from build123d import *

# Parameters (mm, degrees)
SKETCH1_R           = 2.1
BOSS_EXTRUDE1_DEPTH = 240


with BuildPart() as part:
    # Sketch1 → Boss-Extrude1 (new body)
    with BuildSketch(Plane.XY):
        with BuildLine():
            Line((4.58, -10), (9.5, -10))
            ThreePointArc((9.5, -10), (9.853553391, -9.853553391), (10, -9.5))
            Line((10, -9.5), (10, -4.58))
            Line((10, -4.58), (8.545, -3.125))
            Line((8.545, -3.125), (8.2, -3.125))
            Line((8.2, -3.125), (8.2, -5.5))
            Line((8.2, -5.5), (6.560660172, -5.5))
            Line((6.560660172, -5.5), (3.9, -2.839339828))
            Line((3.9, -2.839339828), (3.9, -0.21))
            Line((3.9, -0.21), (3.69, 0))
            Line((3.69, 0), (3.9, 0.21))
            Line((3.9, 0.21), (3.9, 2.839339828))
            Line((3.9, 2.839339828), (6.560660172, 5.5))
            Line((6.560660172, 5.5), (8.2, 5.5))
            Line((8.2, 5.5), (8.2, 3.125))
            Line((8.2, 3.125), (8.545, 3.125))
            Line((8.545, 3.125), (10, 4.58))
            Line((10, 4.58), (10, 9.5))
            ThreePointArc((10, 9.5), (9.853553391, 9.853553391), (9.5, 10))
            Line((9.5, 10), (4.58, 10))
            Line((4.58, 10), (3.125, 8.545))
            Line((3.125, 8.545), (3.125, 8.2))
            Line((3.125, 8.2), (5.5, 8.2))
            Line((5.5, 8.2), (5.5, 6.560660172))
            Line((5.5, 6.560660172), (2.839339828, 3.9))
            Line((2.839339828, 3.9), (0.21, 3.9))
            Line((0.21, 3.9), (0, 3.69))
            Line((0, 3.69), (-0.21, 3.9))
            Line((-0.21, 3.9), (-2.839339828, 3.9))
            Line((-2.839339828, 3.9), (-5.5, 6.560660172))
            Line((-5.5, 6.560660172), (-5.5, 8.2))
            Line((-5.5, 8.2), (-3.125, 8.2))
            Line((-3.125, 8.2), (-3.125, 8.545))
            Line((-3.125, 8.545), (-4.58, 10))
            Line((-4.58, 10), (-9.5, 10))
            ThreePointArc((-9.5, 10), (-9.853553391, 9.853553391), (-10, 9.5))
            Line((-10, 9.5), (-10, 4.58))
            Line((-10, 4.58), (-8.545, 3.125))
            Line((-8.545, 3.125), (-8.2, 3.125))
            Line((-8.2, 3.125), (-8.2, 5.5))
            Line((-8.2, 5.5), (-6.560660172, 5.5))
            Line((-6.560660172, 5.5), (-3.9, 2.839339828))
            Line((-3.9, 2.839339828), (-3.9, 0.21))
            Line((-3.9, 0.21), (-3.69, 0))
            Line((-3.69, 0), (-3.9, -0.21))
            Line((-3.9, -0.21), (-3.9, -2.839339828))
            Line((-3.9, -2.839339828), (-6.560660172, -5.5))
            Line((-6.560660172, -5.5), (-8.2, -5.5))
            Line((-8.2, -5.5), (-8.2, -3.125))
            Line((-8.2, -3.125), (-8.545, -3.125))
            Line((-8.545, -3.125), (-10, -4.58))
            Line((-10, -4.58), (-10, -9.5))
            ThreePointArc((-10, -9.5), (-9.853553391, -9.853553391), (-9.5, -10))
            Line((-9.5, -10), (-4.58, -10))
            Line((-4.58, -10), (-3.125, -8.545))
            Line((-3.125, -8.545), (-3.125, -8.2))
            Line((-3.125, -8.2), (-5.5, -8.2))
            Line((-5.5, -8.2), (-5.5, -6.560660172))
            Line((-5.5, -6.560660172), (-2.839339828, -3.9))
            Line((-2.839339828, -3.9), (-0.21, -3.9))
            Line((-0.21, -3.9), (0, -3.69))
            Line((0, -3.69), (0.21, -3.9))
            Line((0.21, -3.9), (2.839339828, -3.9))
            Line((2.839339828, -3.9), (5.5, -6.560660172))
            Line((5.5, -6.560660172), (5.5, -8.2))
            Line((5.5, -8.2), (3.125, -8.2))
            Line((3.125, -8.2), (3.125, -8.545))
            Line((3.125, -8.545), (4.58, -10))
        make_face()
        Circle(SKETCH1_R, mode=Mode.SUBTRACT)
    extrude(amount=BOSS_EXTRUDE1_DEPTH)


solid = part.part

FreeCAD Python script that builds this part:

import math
import FreeCAD as App
import Part
import Sketcher
from FreeCAD import Vector
Q = App.Units.Quantity

doc = App.newDocument("Part")
body = doc.addObject("PartDesign::Body", "Body")

sketch1 = doc.addObject("Sketcher::SketchObject", "Sketch")
body.addObject(sketch1)
sketch1.AttachmentSupport = (doc.XY_Plane, [""])
sketch1.MapMode = "FlatFace"
sketch1.addGeometry(Part.LineSegment(Vector(4.58, -10, 0), Vector(9.5, -10, 0)), False)
sketch1.addGeometry(Part.ArcOfCircle(Part.Circle(Vector(9.5, -9.5, 0), Vector(0, 0, 1), 0.5), math.radians(-90), math.radians(0)), False)
sketch1.addGeometry(Part.LineSegment(Vector(10, -9.5, 0), Vector(10, -4.58, 0)), False)
sketch1.addGeometry(Part.LineSegment(Vector(10, -4.58, 0), Vector(8.54, -3.12, 0)), False)
sketch1.addGeometry(Part.LineSegment(Vector(8.54, -3.12, 0), Vector(8.2, -3.12, 0)), False)
sketch1.addGeometry(Part.LineSegment(Vector(8.2, -3.12, 0), Vector(8.2, -5.5, 0)), False)
sketch1.addGeometry(Part.LineSegment(Vector(8.2, -5.5, 0), Vector(6.56, -5.5, 0)), False)
sketch1.addGeometry(Part.LineSegment(Vector(6.56, -5.5, 0), Vector(3.9, -2.84, 0)), False)
sketch1.addGeometry(Part.LineSegment(Vector(3.9, -2.84, 0), Vector(3.9, -0.21, 0)), False)
sketch1.addGeometry(Part.LineSegment(Vector(3.9, -0.21, 0), Vector(3.69, 0, 0)), False)
sketch1.addGeometry(Part.LineSegment(Vector(3.69, 0, 0), Vector(3.9, 0.21, 0)), False)
sketch1.addGeometry(Part.LineSegment(Vector(3.9, 0.21, 0), Vector(3.9, 2.84, 0)), False)
sketch1.addGeometry(Part.LineSegment(Vector(3.9, 2.84, 0), Vector(6.56, 5.5, 0)), False)
sketch1.addGeometry(Part.LineSegment(Vector(6.56, 5.5, 0), Vector(8.2, 5.5, 0)), False)
sketch1.addGeometry(Part.LineSegment(Vector(8.2, 5.5, 0), Vector(8.2, 3.12, 0)), False)
sketch1.addGeometry(Part.LineSegment(Vector(8.2, 3.12, 0), Vector(8.54, 3.12, 0)), False)
sketch1.addGeometry(Part.LineSegment(Vector(8.54, 3.12, 0), Vector(10, 4.58, 0)), False)
sketch1.addGeometry(Part.LineSegment(Vector(10, 4.58, 0), Vector(10, 9.5, 0)), False)
sketch1.addGeometry(Part.ArcOfCircle(Part.Circle(Vector(9.5, 9.5, 0), Vector(0, 0, 1), 0.5), math.radians(0), math.radians(90)), False)
sketch1.addGeometry(Part.LineSegment(Vector(9.5, 10, 0), Vector(4.58, 10, 0)), False)
sketch1.addGeometry(Part.LineSegment(Vector(4.58, 10, 0), Vector(3.12, 8.54, 0)), False)
sketch1.addGeometry(Part.LineSegment(Vector(3.12, 8.54, 0), Vector(3.12, 8.2, 0)), False)
sketch1.addGeometry(Part.LineSegment(Vector(3.12, 8.2, 0), Vector(5.5, 8.2, 0)), False)
sketch1.addGeometry(Part.LineSegment(Vector(5.5, 8.2, 0), Vector(5.5, 6.56, 0)), False)
sketch1.addGeometry(Part.LineSegment(Vector(5.5, 6.56, 0), Vector(2.84, 3.9, 0)), False)
sketch1.addGeometry(Part.LineSegment(Vector(2.84, 3.9, 0), Vector(0.21, 3.9, 0)), False)
sketch1.addGeometry(Part.LineSegment(Vector(0.21, 3.9, 0), Vector(0, 3.69, 0)), False)
sketch1.addGeometry(Part.LineSegment(Vector(0, 3.69, 0), Vector(-0.21, 3.9, 0)), False)
sketch1.addGeometry(Part.LineSegment(Vector(-0.21, 3.9, 0), Vector(-2.84, 3.9, 0)), False)
sketch1.addGeometry(Part.LineSegment(Vector(-2.84, 3.9, 0), Vector(-5.5, 6.56, 0)), False)
sketch1.addGeometry(Part.LineSegment(Vector(-5.5, 6.56, 0), Vector(-5.5, 8.2, 0)), False)
sketch1.addGeometry(Part.LineSegment(Vector(-5.5, 8.2, 0), Vector(-3.12, 8.2, 0)), False)
sketch1.addGeometry(Part.LineSegment(Vector(-3.12, 8.2, 0), Vector(-3.12, 8.54, 0)), False)
sketch1.addGeometry(Part.LineSegment(Vector(-3.12, 8.54, 0), Vector(-4.58, 10, 0)), False)
sketch1.addGeometry(Part.LineSegment(Vector(-4.58, 10, 0), Vector(-9.5, 10, 0)), False)
sketch1.addGeometry(Part.ArcOfCircle(Part.Circle(Vector(-9.5, 9.5, 0), Vector(0, 0, 1), 0.5), math.radians(90), math.radians(180)), False)
sketch1.addGeometry(Part.LineSegment(Vector(-10, 9.5, 0), Vector(-10, 4.58, 0)), False)
sketch1.addGeometry(Part.LineSegment(Vector(-10, 4.58, 0), Vector(-8.54, 3.12, 0)), False)
sketch1.addGeometry(Part.LineSegment(Vector(-8.54, 3.12, 0), Vector(-8.2, 3.12, 0)), False)
sketch1.addGeometry(Part.LineSegment(Vector(-8.2, 3.12, 0), Vector(-8.2, 5.5, 0)), False)
sketch1.addGeometry(Part.LineSegment(Vector(-8.2, 5.5, 0), Vector(-6.56, 5.5, 0)), False)
sketch1.addGeometry(Part.LineSegment(Vector(-6.56, 5.5, 0), Vector(-3.9, 2.84, 0)), False)
sketch1.addGeometry(Part.LineSegment(Vector(-3.9, 2.84, 0), Vector(-3.9, 0.21, 0)), False)
sketch1.addGeometry(Part.LineSegment(Vector(-3.9, 0.21, 0), Vector(-3.69, 0, 0)), False)
sketch1.addGeometry(Part.LineSegment(Vector(-3.69, 0, 0), Vector(-3.9, -0.21, 0)), False)
sketch1.addGeometry(Part.LineSegment(Vector(-3.9, -0.21, 0), Vector(-3.9, -2.84, 0)), False)
sketch1.addGeometry(Part.LineSegment(Vector(-3.9, -2.84, 0), Vector(-6.56, -5.5, 0)), False)
sketch1.addGeometry(Part.LineSegment(Vector(-6.56, -5.5, 0), Vector(-8.2, -5.5, 0)), False)
sketch1.addGeometry(Part.LineSegment(Vector(-8.2, -5.5, 0), Vector(-8.2, -3.12, 0)), False)
sketch1.addGeometry(Part.LineSegment(Vector(-8.2, -3.12, 0), Vector(-8.54, -3.12, 0)), False)
sketch1.addGeometry(Part.LineSegment(Vector(-8.54, -3.12, 0), Vector(-10, -4.58, 0)), False)
sketch1.addGeometry(Part.LineSegment(Vector(-10, -4.58, 0), Vector(-10, -9.5, 0)), False)
sketch1.addGeometry(Part.ArcOfCircle(Part.Circle(Vector(-9.5, -9.5, 0), Vector(0, 0, 1), 0.5), math.radians(180), math.radians(270)), False)
sketch1.addGeometry(Part.LineSegment(Vector(-9.5, -10, 0), Vector(-4.58, -10, 0)), False)
sketch1.addGeometry(Part.LineSegment(Vector(-4.58, -10, 0), Vector(-3.12, -8.54, 0)), False)
sketch1.addGeometry(Part.LineSegment(Vector(-3.12, -8.54, 0), Vector(-3.12, -8.2, 0)), False)
sketch1.addGeometry(Part.LineSegment(Vector(-3.12, -8.2, 0), Vector(-5.5, -8.2, 0)), False)
sketch1.addGeometry(Part.LineSegment(Vector(-5.5, -8.2, 0), Vector(-5.5, -6.56, 0)), False)
sketch1.addGeometry(Part.LineSegment(Vector(-5.5, -6.56, 0), Vector(-2.84, -3.9, 0)), False)
sketch1.addGeometry(Part.LineSegment(Vector(-2.84, -3.9, 0), Vector(-0.21, -3.9, 0)), False)
sketch1.addGeometry(Part.LineSegment(Vector(-0.21, -3.9, 0), Vector(0, -3.69, 0)), False)
sketch1.addGeometry(Part.LineSegment(Vector(0, -3.69, 0), Vector(0.21, -3.9, 0)), False)
sketch1.addGeometry(Part.LineSegment(Vector(0.21, -3.9, 0), Vector(2.84, -3.9, 0)), False)
sketch1.addGeometry(Part.LineSegment(Vector(2.84, -3.9, 0), Vector(5.5, -6.56, 0)), False)
sketch1.addGeometry(Part.LineSegment(Vector(5.5, -6.56, 0), Vector(5.5, -8.2, 0)), False)
sketch1.addGeometry(Part.LineSegment(Vector(5.5, -8.2, 0), Vector(3.12, -8.2, 0)), False)
sketch1.addGeometry(Part.LineSegment(Vector(3.12, -8.2, 0), Vector(3.12, -8.54, 0)), False)
sketch1.addGeometry(Part.LineSegment(Vector(3.12, -8.54, 0), Vector(4.58, -10, 0)), False)
sketch1.addGeometry(Part.Circle(Vector(0, 0, 0), Vector(0, 0, 1), 2.1), False)
sketch1.addConstraint(Sketcher.Constraint("Tangent", 0, 2, 1, 1))
sketch1.addConstraint(Sketcher.Constraint("Tangent", 1, 2, 2, 1))
sketch1.addConstraint(Sketcher.Constraint("Coincident", 2, 2, 3, 1))
sketch1.addConstraint(Sketcher.Constraint("Coincident", 3, 2, 4, 1))
sketch1.addConstraint(Sketcher.Constraint("Coincident", 4, 2, 5, 1))
sketch1.addConstraint(Sketcher.Constraint("Coincident", 5, 2, 6, 1))
sketch1.addConstraint(Sketcher.Constraint("Coincident", 6, 2, 7, 1))
sketch1.addConstraint(Sketcher.Constraint("Coincident", 7, 2, 8, 1))
sketch1.addConstraint(Sketcher.Constraint("Coincident", 8, 2, 9, 1))
sketch1.addConstraint(Sketcher.Constraint("Coincident", 9, 2, 10, 1))
sketch1.addConstraint(Sketcher.Constraint("Coincident", 10, 2, 11, 1))
sketch1.addConstraint(Sketcher.Constraint("Coincident", 11, 2, 12, 1))
sketch1.addConstraint(Sketcher.Constraint("Coincident", 12, 2, 13, 1))
sketch1.addConstraint(Sketcher.Constraint("Coincident", 13, 2, 14, 1))
sketch1.addConstraint(Sketcher.Constraint("Coincident", 14, 2, 15, 1))
sketch1.addConstraint(Sketcher.Constraint("Coincident", 15, 2, 16, 1))
sketch1.addConstraint(Sketcher.Constraint("Coincident", 16, 2, 17, 1))
sketch1.addConstraint(Sketcher.Constraint("Tangent", 17, 2, 18, 1))
sketch1.addConstraint(Sketcher.Constraint("Tangent", 18, 2, 19, 1))
sketch1.addConstraint(Sketcher.Constraint("Coincident", 19, 2, 20, 1))
sketch1.addConstraint(Sketcher.Constraint("Coincident", 20, 2, 21, 1))
sketch1.addConstraint(Sketcher.Constraint("Coincident", 21, 2, 22, 1))
sketch1.addConstraint(Sketcher.Constraint("Coincident", 22, 2, 23, 1))
sketch1.addConstraint(Sketcher.Constraint("Coincident", 23, 2, 24, 1))
sketch1.addConstraint(Sketcher.Constraint("Coincident", 24, 2, 25, 1))
sketch1.addConstraint(Sketcher.Constraint("Coincident", 25, 2, 26, 1))
sketch1.addConstraint(Sketcher.Constraint("Coincident", 26, 2, 27, 1))
sketch1.addConstraint(Sketcher.Constraint("Coincident", 27, 2, 28, 1))
sketch1.addConstraint(Sketcher.Constraint("Coincident", 28, 2, 29, 1))
sketch1.addConstraint(Sketcher.Constraint("Coincident", 29, 2, 30, 1))
sketch1.addConstraint(Sketcher.Constraint("Coincident", 30, 2, 31, 1))
sketch1.addConstraint(Sketcher.Constraint("Coincident", 31, 2, 32, 1))
sketch1.addConstraint(Sketcher.Constraint("Coincident", 32, 2, 33, 1))
sketch1.addConstraint(Sketcher.Constraint("Coincident", 33, 2, 34, 1))
sketch1.addConstraint(Sketcher.Constraint("Tangent", 34, 2, 35, 1))
sketch1.addConstraint(Sketcher.Constraint("Tangent", 35, 2, 36, 1))
sketch1.addConstraint(Sketcher.Constraint("Coincident", 36, 2, 37, 1))
sketch1.addConstraint(Sketcher.Constraint("Coincident", 37, 2, 38, 1))
sketch1.addConstraint(Sketcher.Constraint("Coincident", 38, 2, 39, 1))
sketch1.addConstraint(Sketcher.Constraint("Coincident", 39, 2, 40, 1))
sketch1.addConstraint(Sketcher.Constraint("Coincident", 40, 2, 41, 1))
sketch1.addConstraint(Sketcher.Constraint("Coincident", 41, 2, 42, 1))
sketch1.addConstraint(Sketcher.Constraint("Coincident", 42, 2, 43, 1))
sketch1.addConstraint(Sketcher.Constraint("Coincident", 43, 2, 44, 1))
sketch1.addConstraint(Sketcher.Constraint("Coincident", 44, 2, 45, 1))
sketch1.addConstraint(Sketcher.Constraint("Coincident", 45, 2, 46, 1))
sketch1.addConstraint(Sketcher.Constraint("Coincident", 46, 2, 47, 1))
sketch1.addConstraint(Sketcher.Constraint("Coincident", 47, 2, 48, 1))
sketch1.addConstraint(Sketcher.Constraint("Coincident", 48, 2, 49, 1))
sketch1.addConstraint(Sketcher.Constraint("Coincident", 49, 2, 50, 1))
sketch1.addConstraint(Sketcher.Constraint("Coincident", 50, 2, 51, 1))
sketch1.addConstraint(Sketcher.Constraint("Tangent", 51, 2, 52, 1))
sketch1.addConstraint(Sketcher.Constraint("Tangent", 52, 2, 53, 1))
sketch1.addConstraint(Sketcher.Constraint("Coincident", 53, 2, 54, 1))
sketch1.addConstraint(Sketcher.Constraint("Coincident", 54, 2, 55, 1))
sketch1.addConstraint(Sketcher.Constraint("Coincident", 55, 2, 56, 1))
sketch1.addConstraint(Sketcher.Constraint("Coincident", 56, 2, 57, 1))
sketch1.addConstraint(Sketcher.Constraint("Coincident", 57, 2, 58, 1))
sketch1.addConstraint(Sketcher.Constraint("Coincident", 58, 2, 59, 1))
sketch1.addConstraint(Sketcher.Constraint("Coincident", 59, 2, 60, 1))
sketch1.addConstraint(Sketcher.Constraint("Coincident", 60, 2, 61, 1))
sketch1.addConstraint(Sketcher.Constraint("Coincident", 61, 2, 62, 1))
sketch1.addConstraint(Sketcher.Constraint("Coincident", 62, 2, 63, 1))
sketch1.addConstraint(Sketcher.Constraint("Coincident", 63, 2, 64, 1))
sketch1.addConstraint(Sketcher.Constraint("Coincident", 64, 2, 65, 1))
sketch1.addConstraint(Sketcher.Constraint("Coincident", 65, 2, 66, 1))
sketch1.addConstraint(Sketcher.Constraint("Coincident", 66, 2, 67, 1))
sketch1.addConstraint(Sketcher.Constraint("Coincident", 67, 2, 0, 1))
sketch1.addConstraint(Sketcher.Constraint("Horizontal", 0))
sketch1.addConstraint(Sketcher.Constraint("Vertical", 2))
sketch1.addConstraint(Sketcher.Constraint("Horizontal", 4))
sketch1.addConstraint(Sketcher.Constraint("Vertical", 5))
sketch1.addConstraint(Sketcher.Constraint("Horizontal", 6))
sketch1.addConstraint(Sketcher.Constraint("Vertical", 8))
sketch1.addConstraint(Sketcher.Constraint("Vertical", 11))
sketch1.addConstraint(Sketcher.Constraint("Horizontal", 13))
sketch1.addConstraint(Sketcher.Constraint("Vertical", 14))
sketch1.addConstraint(Sketcher.Constraint("Horizontal", 15))
sketch1.addConstraint(Sketcher.Constraint("Vertical", 17))
sketch1.addConstraint(Sketcher.Constraint("Horizontal", 19))
sketch1.addConstraint(Sketcher.Constraint("Vertical", 21))
sketch1.addConstraint(Sketcher.Constraint("Horizontal", 22))
sketch1.addConstraint(Sketcher.Constraint("Vertical", 23))
sketch1.addConstraint(Sketcher.Constraint("Horizontal", 25))
sketch1.addConstraint(Sketcher.Constraint("Horizontal", 28))
sketch1.addConstraint(Sketcher.Constraint("Vertical", 30))
sketch1.addConstraint(Sketcher.Constraint("Horizontal", 31))
sketch1.addConstraint(Sketcher.Constraint("Vertical", 32))
sketch1.addConstraint(Sketcher.Constraint("Horizontal", 34))
sketch1.addConstraint(Sketcher.Constraint("Vertical", 36))
sketch1.addConstraint(Sketcher.Constraint("Horizontal", 38))
sketch1.addConstraint(Sketcher.Constraint("Vertical", 39))
sketch1.addConstraint(Sketcher.Constraint("Horizontal", 40))
sketch1.addConstraint(Sketcher.Constraint("Vertical", 42))
sketch1.addConstraint(Sketcher.Constraint("Vertical", 45))
sketch1.addConstraint(Sketcher.Constraint("Horizontal", 47))
sketch1.addConstraint(Sketcher.Constraint("Vertical", 48))
sketch1.addConstraint(Sketcher.Constraint("Horizontal", 49))
sketch1.addConstraint(Sketcher.Constraint("Vertical", 51))
sketch1.addConstraint(Sketcher.Constraint("Horizontal", 53))
sketch1.addConstraint(Sketcher.Constraint("Vertical", 55))
sketch1.addConstraint(Sketcher.Constraint("Horizontal", 56))
sketch1.addConstraint(Sketcher.Constraint("Vertical", 57))
sketch1.addConstraint(Sketcher.Constraint("Horizontal", 59))
sketch1.addConstraint(Sketcher.Constraint("Horizontal", 62))
sketch1.addConstraint(Sketcher.Constraint("Vertical", 64))
sketch1.addConstraint(Sketcher.Constraint("Horizontal", 65))
sketch1.addConstraint(Sketcher.Constraint("Vertical", 66))
sketch1.addConstraint(Sketcher.Constraint("Coincident", 68, 3, -1, 1))
sketch1.addConstraint(Sketcher.Constraint("Equal", 1, 18))
sketch1.addConstraint(Sketcher.Constraint("Equal", 18, 35))
sketch1.addConstraint(Sketcher.Constraint("Equal", 35, 52))
sketch1.addConstraint(Sketcher.Constraint("Symmetric", 1, 3, 35, 3, -1, 1))
sketch1.addConstraint(Sketcher.Constraint("Symmetric", 18, 3, 52, 3, -1, 1))
sketch1.addConstraint(Sketcher.Constraint("Symmetric", 3, 2, 37, 2, -1, 1))
sketch1.addConstraint(Sketcher.Constraint("Symmetric", 5, 2, 39, 2, -1, 1))
sketch1.addConstraint(Sketcher.Constraint("Symmetric", 7, 2, 41, 2, -1, 1))
sketch1.addConstraint(Sketcher.Constraint("Symmetric", 9, 2, 43, 2, -1, 1))
sketch1.addConstraint(Sketcher.Constraint("Symmetric", 10, 2, 44, 2, -1, 1))
sketch1.addConstraint(Sketcher.Constraint("Symmetric", 12, 2, 46, 2, -1, 1))
sketch1.addConstraint(Sketcher.Constraint("Symmetric", 14, 2, 48, 2, -1, 1))
sketch1.addConstraint(Sketcher.Constraint("Symmetric", 20, 2, 54, 2, -1, 1))
sketch1.addConstraint(Sketcher.Constraint("Symmetric", 22, 2, 56, 2, -1, 1))
sketch1.addConstraint(Sketcher.Constraint("Symmetric", 24, 2, 58, 2, -1, 1))
sketch1.addConstraint(Sketcher.Constraint("Symmetric", 26, 2, 60, 2, -1, 1))
sketch1.addConstraint(Sketcher.Constraint("Symmetric", 27, 2, 61, 2, -1, 1))
sketch1.addConstraint(Sketcher.Constraint("Symmetric", 29, 2, 63, 2, -1, 1))
sketch1.addConstraint(Sketcher.Constraint("Symmetric", 31, 2, 65, 2, -1, 1))
sketch1.addConstraint(Sketcher.Constraint("Symmetric", 18, 3, 35, 3, -2))
sketch1.addConstraint(Sketcher.Constraint("Symmetric", 25, 2, 27, 2, -2))
sketch1.addConstraint(Sketcher.Constraint("Symmetric", 23, 2, 29, 2, -2))
sketch1.addConstraint(Sketcher.Constraint("Symmetric", 21, 2, 31, 2, -2))
sketch1.addConstraint(Sketcher.Constraint("Symmetric", 15, 2, 37, 2, -2))
sketch1.addConstraint(Sketcher.Constraint("Symmetric", 13, 2, 39, 2, -2))
sketch1.addConstraint(Sketcher.Constraint("Symmetric", 11, 2, 41, 2, -2))
sketch1.addConstraint(Sketcher.Constraint("PointOnObject", 9, 2, -1))
sketch1.addConstraint(Sketcher.Constraint("PointOnObject", 26, 2, -2))
sketch1.addConstraint(Sketcher.Constraint("Parallel", 3, 7))
sketch1.addConstraint(Sketcher.Constraint("Parallel", 7, 9))
sketch1.addConstraint(Sketcher.Constraint("Perpendicular", 9, 10))
sketch1.addConstraint(Sketcher.Constraint("Parallel", 10, 12))
sketch1.addConstraint(Sketcher.Constraint("Parallel", 12, 16))
sketch1.addConstraint(Sketcher.Constraint("Parallel", 16, 20))
sketch1.addConstraint(Sketcher.Constraint("Parallel", 20, 24))
sketch1.addConstraint(Sketcher.Constraint("Parallel", 24, 26))
sketch1.addConstraint(Sketcher.Constraint("Perpendicular", 26, 27))
sketch1.addConstraint(Sketcher.Constraint("Parallel", 27, 29))
sketch1.addConstraint(Sketcher.Constraint("Parallel", 29, 33))
sketch1.addConstraint(Sketcher.Constraint("Parallel", 33, 37))
sketch1.addConstraint(Sketcher.Constraint("Parallel", 37, 41))
sketch1.addConstraint(Sketcher.Constraint("Parallel", 41, 43))
sketch1.addConstraint(Sketcher.Constraint("Parallel", 44, 46))
sketch1.addConstraint(Sketcher.Constraint("Parallel", 46, 50))
sketch1.addConstraint(Sketcher.Constraint("Parallel", 50, 54))
sketch1.addConstraint(Sketcher.Constraint("Parallel", 54, 58))
sketch1.addConstraint(Sketcher.Constraint("Parallel", 58, 60))
sketch1.addConstraint(Sketcher.Constraint("Parallel", 61, 63))
sketch1.addConstraint(Sketcher.Constraint("Parallel", 63, 67))
sketch1.addConstraint(Sketcher.Constraint("Horizontal", 20, 2, 32, 2))
sketch1.addConstraint(Sketcher.Constraint("Horizontal", 2, 2, 50, 2))
sketch1.addConstraint(Sketcher.Constraint("Horizontal", 54, 2, 66, 2))
sketch1.addConstraint(Sketcher.Constraint("Equal", 53, 2))
sketch1.addConstraint(Sketcher.Constraint("Equal", 65, 5))
sketch1.addConstraint(Sketcher.Constraint("Equal", 62, 8))
sketch1.addConstraint(Sketcher.Constraint("Equal", 49, 21))
sketch1.addConstraint(Sketcher.Constraint("Equal", 47, 23))
sketch1.addConstraint(Sketcher.Constraint("Equal", 16, 20))
sketch1.addConstraint(Sketcher.Constraint("Equal", 12, 24))
sketch1.addConstraint(Sketcher.Constraint("Equal", 10, 26))
sketch1.addConstraint(Sketcher.Constraint("Diameter", 68, Q("4.2 mm")))
sketch1.addConstraint(Sketcher.Constraint("Radius", 1, Q("0.5 mm")))
sketch1.addConstraint(Sketcher.Constraint("DistanceY", 0, 2, -1, 1, Q("10 mm")))
sketch1.addConstraint(Sketcher.Constraint("DistanceX", 0, 1, 0, 2, Q("4.92 mm")))
sketch1.addConstraint(Sketcher.Constraint("DistanceX", -1, 1, 4, 2, Q("8.2 mm")))
sketch1.addConstraint(Sketcher.Constraint("DistanceY", 5, 2, -1, 1, Q("5.5 mm")))
sketch1.addConstraint(Sketcher.Constraint("DistanceX", -1, 1, 7, 2, Q("3.9 mm")))
sketch1.addConstraint(Sketcher.Constraint("DistanceX", 4, 2, 4, 1, Q("0.345 mm")))
sketch1.addConstraint(Sketcher.Constraint("DistanceY", 8, 2, -1, 1, Q("0.21 mm")))
sketch1.addConstraint(Sketcher.Constraint("DistanceX", 6, 2, 6, 1, Q("1.63934 mm")))
pad1 = doc.addObject("PartDesign::Pad", "Pad")
body.addObject(pad1)
pad1.Profile = sketch1
pad1.Length = 240

doc.recompute()
